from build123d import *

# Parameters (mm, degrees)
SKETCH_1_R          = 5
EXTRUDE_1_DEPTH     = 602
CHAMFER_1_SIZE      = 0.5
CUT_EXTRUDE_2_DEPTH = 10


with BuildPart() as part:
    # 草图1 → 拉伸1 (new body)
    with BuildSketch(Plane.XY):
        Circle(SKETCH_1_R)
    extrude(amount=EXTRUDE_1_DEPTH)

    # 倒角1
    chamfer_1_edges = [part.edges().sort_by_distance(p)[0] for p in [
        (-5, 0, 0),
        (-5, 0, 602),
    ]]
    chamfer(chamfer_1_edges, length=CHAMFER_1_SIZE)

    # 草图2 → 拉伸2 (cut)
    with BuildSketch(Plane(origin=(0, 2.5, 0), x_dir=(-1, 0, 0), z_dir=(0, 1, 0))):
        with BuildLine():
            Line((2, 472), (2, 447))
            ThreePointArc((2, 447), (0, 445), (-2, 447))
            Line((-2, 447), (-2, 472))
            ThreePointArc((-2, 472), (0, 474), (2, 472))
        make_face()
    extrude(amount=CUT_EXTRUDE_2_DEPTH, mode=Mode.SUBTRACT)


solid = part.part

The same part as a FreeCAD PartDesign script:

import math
import FreeCAD as App
import Part
import Sketcher

V = App.Vector
Q = App.Units.Quantity


def edges_at(feature, points):
    """Names of the edges that pass closest to the given points."""
    edges = feature.Shape.Edges
    near = lambda p: min(range(len(edges)), key=lambda i: edges[i].distToShape(Part.Vertex(*p))[0])
    return sorted({f"Edge{near(p) + 1}" for p in points})

doc = App.newDocument("Part")
body = doc.addObject("PartDesign::Body", "Body")

# Sketch on XY plane
sketch1 = doc.addObject("Sketcher::SketchObject", "Sketch")
body.addObject(sketch1)
sketch1.AttachmentSupport = (doc.XY_Plane, [""])
sketch1.MapMode = "FlatFace"
sketch1.addGeometry(Part.Circle(V(0, 0, 0), V(0, 0, 1), 5), False)
sketch1.addConstraint(Sketcher.Constraint("Coincident", 0, 3, -1, 1))
sketch1.addConstraint(Sketcher.Constraint("Diameter", 0, Q("10 mm")))
pad1 = doc.addObject("PartDesign::Pad", "Pad")
body.addObject(pad1)
pad1.Profile = sketch1
pad1.Length = 602
doc.recompute()

chamfer = doc.addObject("PartDesign::Chamfer", "Chamfer")
body.addObject(chamfer)
chamfer.Base = (pad1, edges_at(pad1, [(-5, 0, 0), (-5, 0, 602)]))
chamfer.Size = 0.5

# Sketch on XZ plane
sketch2 = doc.addObject("Sketcher::SketchObject", "Sketch001")
body.addObject(sketch2)
sketch2.AttachmentSupport = (doc.XZ_Plane, [""])
sketch2.MapMode = "FlatFace"
sketch2.AttachmentOffset = App.Placement(V(0, 0, -2.5), App.Rotation())
sketch2.addGeometry(Part.LineSegment(V(-2, 447, 0), V(-2, 472, 0)), False)
sketch2.addGeometry(Part.ArcOfCircle(Part.Circle(V(0, 472, 0), V(0, 0, 1), 2), math.radians(0), math.radians(180)), False)
sketch2.addGeometry(Part.LineSegment(V(2, 472, 0), V(2, 447, 0)), False)
sketch2.addGeometry(Part.ArcOfCircle(Part.Circle(V(0, 447, 0), V(0, 0, 1), 2), math.radians(180), math.radians(360)), False)
sketch2.addConstraint(Sketcher.Constraint("Tangent", 0, 2, 1, 2))
sketch2.addConstraint(Sketcher.Constraint("Tangent", 1, 1, 2, 1))
sketch2.addConstraint(Sketcher.Constraint("Tangent", 2, 2, 3, 2))
sketch2.addConstraint(Sketcher.Constraint("Tangent", 3, 1, 0, 1))
sketch2.addConstraint(Sketcher.Constraint("Vertical", 0))
sketch2.addConstraint(Sketcher.Constraint("Vertical", 2))
sketch2.addConstraint(Sketcher.Constraint("PointOnObject", 1, 3, -2))
sketch2.addConstraint(Sketcher.Constraint("Radius", 1, Q("2 mm")))
sketch2.addConstraint(Sketcher.Constraint("DistanceY", 0, 1, 0, 2, Q("25 mm")))
sketch2.addConstraint(Sketcher.Constraint("DistanceY", -1, 1, 1, 3, Q("472 mm")))
pocket1 = doc.addObject("PartDesign::Pocket", "Pocket")
body.addObject(pocket1)
pocket1.Profile = sketch2
pocket1.Length = 10

doc.recompute()
